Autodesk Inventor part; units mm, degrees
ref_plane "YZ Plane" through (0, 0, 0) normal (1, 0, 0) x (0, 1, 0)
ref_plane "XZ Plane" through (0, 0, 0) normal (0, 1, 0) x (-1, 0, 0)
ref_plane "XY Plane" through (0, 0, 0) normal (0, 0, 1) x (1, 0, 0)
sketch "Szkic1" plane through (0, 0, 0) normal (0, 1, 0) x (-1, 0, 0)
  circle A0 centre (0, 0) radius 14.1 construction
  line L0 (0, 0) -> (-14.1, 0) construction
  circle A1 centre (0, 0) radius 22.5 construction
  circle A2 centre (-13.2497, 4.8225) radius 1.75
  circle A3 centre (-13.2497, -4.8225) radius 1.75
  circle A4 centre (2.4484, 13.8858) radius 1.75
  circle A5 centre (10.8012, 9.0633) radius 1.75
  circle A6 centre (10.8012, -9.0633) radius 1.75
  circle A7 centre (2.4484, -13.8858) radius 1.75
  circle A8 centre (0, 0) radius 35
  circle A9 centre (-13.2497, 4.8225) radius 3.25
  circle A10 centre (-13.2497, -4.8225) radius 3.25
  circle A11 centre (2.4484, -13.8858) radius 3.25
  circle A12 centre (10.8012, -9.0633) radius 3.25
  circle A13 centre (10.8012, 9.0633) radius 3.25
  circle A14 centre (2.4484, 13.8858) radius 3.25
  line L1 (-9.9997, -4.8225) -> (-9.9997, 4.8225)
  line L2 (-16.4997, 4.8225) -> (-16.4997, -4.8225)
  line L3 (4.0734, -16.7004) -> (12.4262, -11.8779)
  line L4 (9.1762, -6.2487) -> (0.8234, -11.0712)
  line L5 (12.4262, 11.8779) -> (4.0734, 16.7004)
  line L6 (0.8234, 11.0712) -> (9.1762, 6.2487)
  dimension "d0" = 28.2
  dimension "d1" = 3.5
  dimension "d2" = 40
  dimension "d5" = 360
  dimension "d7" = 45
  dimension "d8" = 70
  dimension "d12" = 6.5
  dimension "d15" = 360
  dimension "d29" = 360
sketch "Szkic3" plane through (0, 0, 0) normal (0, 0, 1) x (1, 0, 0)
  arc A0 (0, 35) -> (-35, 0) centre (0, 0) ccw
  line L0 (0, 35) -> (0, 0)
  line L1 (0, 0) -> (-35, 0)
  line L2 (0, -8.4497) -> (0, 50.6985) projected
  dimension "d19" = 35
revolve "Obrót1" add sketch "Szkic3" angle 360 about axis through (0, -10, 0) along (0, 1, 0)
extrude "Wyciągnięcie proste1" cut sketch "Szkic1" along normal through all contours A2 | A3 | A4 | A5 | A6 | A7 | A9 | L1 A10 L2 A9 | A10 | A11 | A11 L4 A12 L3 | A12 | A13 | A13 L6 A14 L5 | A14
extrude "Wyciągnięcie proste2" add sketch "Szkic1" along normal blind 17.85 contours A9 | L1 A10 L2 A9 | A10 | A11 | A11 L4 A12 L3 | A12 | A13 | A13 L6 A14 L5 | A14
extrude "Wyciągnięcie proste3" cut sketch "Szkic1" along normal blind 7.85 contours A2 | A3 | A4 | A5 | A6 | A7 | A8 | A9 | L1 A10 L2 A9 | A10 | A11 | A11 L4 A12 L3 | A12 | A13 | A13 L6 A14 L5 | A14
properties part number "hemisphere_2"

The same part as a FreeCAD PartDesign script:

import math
import FreeCAD as App
import Part
import Sketcher
Q = App.Units.Quantity

doc = App.newDocument("Part")
body = doc.addObject("PartDesign::Body", "Body")

# Sketch on XY plane
sketch1 = body.newObject("Sketcher::SketchObject", "Sketch")
sketch1.AttachmentSupport = (doc.getObject("XY_Plane"), [""])
sketch1.MapMode = "FlatFace"
sketch1.addGeometry(Part.LineSegment(App.Vector(0, 0, 0), App.Vector(0, 35, 0)), False)
sketch1.addGeometry(Part.ArcOfCircle(Part.Circle(App.Vector(0, 0, 0), App.Vector(0, 0, 1), 35), math.radians(90), math.radians(180)), False)
sketch1.addGeometry(Part.LineSegment(App.Vector(-35, 0, 0), App.Vector(0, 0, 0)), False)
sketch1.addConstraint(Sketcher.Constraint("Coincident", 0, 2, 1, 1))
sketch1.addConstraint(Sketcher.Constraint("Coincident", 1, 2, 2, 1))
sketch1.addConstraint(Sketcher.Constraint("Coincident", 2, 2, 0, 1))
sketch1.addConstraint(Sketcher.Constraint("Vertical", 0))
sketch1.addConstraint(Sketcher.Constraint("Horizontal", 2))
sketch1.addConstraint(Sketcher.Constraint("Coincident", 1, 3, -1, 1))
sketch1.addConstraint(Sketcher.Constraint("Coincident", 2, 2, -1, 1))
sketch1.addConstraint(Sketcher.Constraint("Radius", 1, Q("35 mm")))
revolution = body.newObject("PartDesign::Revolution", "Revolution")
revolution.Profile = sketch1
revolution.ReferenceAxis = (sketch1, ["V_Axis"])
revolution.Angle = 360

# Sketch on XZ plane
sketch2 = body.newObject("Sketcher::SketchObject", "Sketch001")
sketch2.AttachmentSupport = (doc.getObject("XZ_Plane"), [""])
sketch2.MapMode = "FlatFace"
sketch2.addGeometry(Part.ArcOfCircle(Part.Circle(App.Vector(13.2, 4.8, 0), App.Vector(0, 0, 1), 3.2), math.radians(0), math.radians(180)), False)
sketch2.addGeometry(Part.LineSegment(App.Vector(16.5, 4.8, 0), App.Vector(16.5, -4.8, 0)), False)
sketch2.addGeometry(Part.ArcOfCircle(Part.Circle(App.Vector(13.2, -4.8, 0), App.Vector(0, 0, 1), 3.2), math.radians(180), math.radians(360)), False)
sketch2.addGeometry(Part.LineSegment(App.Vector(10, -4.8, 0), App.Vector(10, 4.8, 0)), False)
sketch2.addGeometry(Part.ArcOfCircle(Part.Circle(App.Vector(-2.4, 13.9, 0), App.Vector(0, 0, 1), 3.2), math.radians(-60), math.radians(120)), False)
sketch2.addGeometry(Part.LineSegment(App.Vector(-0.8, 11.1, 0), App.Vector(-9.2, 6.2, 0)), False)
sketch2.addGeometry(Part.ArcOfCircle(Part.Circle(App.Vector(-10.8, 9.1, 0), App.Vector(0, 0, 1), 3.2), math.radians(120), math.radians(300)), False)
sketch2.addGeometry(Part.LineSegment(App.Vector(-12.4, 11.9, 0), App.Vector(-4.1, 16.7, 0)), False)
sketch2.addGeometry(Part.LineSegment(App.Vector(-9.2, -6.2, 0), App.Vector(-0.8, -11.1, 0)), False)
sketch2.addGeometry(Part.ArcOfCircle(Part.Circle(App.Vector(-2.4, -13.9, 0), App.Vector(0, 0, 1), 3.2), math.radians(-120), math.radians(60)), False)
sketch2.addGeometry(Part.LineSegment(App.Vector(-4.1, -16.7, 0), App.Vector(-12.4, -11.9, 0)), False)
sketch2.addGeometry(Part.ArcOfCircle(Part.Circle(App.Vector(-10.8, -9.1, 0), App.Vector(0, 0, 1), 3.2), math.radians(60), math.radians(240)), False)
sketch2.addConstraint(Sketcher.Constraint("Tangent", 0, 1, 1, 1))
sketch2.addConstraint(Sketcher.Constraint("Tangent", 1, 2, 2, 2))
sketch2.addConstraint(Sketcher.Constraint("Tangent", 2, 1, 3, 1))
sketch2.addConstraint(Sketcher.Constraint("Tangent", 3, 2, 0, 2))
sketch2.addConstraint(Sketcher.Constraint("Tangent", 4, 1, 5, 1))
sketch2.addConstraint(Sketcher.Constraint("Tangent", 5, 2, 6, 2))
sketch2.addConstraint(Sketcher.Constraint("Tangent", 6, 1, 7, 1))
sketch2.addConstraint(Sketcher.Constraint("Tangent", 7, 2, 4, 2))
sketch2.addConstraint(Sketcher.Constraint("Tangent", 8, 2, 9, 2))
sketch2.addConstraint(Sketcher.Constraint("Tangent", 9, 1, 10, 1))
sketch2.addConstraint(Sketcher.Constraint("Tangent", 10, 2, 11, 2))
sketch2.addConstraint(Sketcher.Constraint("Tangent", 11, 1, 8, 1))
sketch2.addConstraint(Sketcher.Constraint("Vertical", 1))
sketch2.addConstraint(Sketcher.Constraint("Vertical", 3))
sketch2.addConstraint(Sketcher.Constraint("Equal", 2, 4))
sketch2.addConstraint(Sketcher.Constraint("Equal", 4, 6))
sketch2.addConstraint(Sketcher.Constraint("Equal", 6, 9))
sketch2.addConstraint(Sketcher.Constraint("Equal", 9, 11))
sketch2.addConstraint(Sketcher.Constraint("Symmetric", 4, 3, 9, 3, -1))
sketch2.addConstraint(Sketcher.Constraint("Symmetric", 6, 3, 11, 3, -1))
sketch2.addConstraint(Sketcher.Constraint("Radius", 0, Q("3.25 mm")))
sketch2.addConstraint(Sketcher.Constraint("Angle", 5, Q("-150 deg")))
sketch2.addConstraint(Sketcher.Constraint("DistanceY", 1, 2, 1, 1, Q("9.645 mm")))
sketch2.addConstraint(Sketcher.Constraint("Distance", 5, Q("9.645 mm")))
sketch2.addConstraint(Sketcher.Constraint("DistanceY", -1, 1, 6, 1, Q("11.878 mm")))
sketch2.addConstraint(Sketcher.Constraint("DistanceX", 4, 3, 0, 3, Q("15.698 mm")))
sketch2.addConstraint(Sketcher.Constraint("DistanceY", 9, 1, 2, 1, Q("11.878 mm")))
sketch2.addConstraint(Sketcher.Constraint("DistanceX", -1, 1, 0, 3, Q("13.2497 mm")))
pocket1 = body.newObject("PartDesign::Pocket", "Pocket")
pocket1.Profile = sketch2
pocket1.Type = "ThroughAll"

# Sketch on XZ plane
sketch3 = body.newObject("Sketcher::SketchObject", "Sketch002")
sketch3.AttachmentSupport = (doc.getObject("XZ_Plane"), [""])
sketch3.MapMode = "FlatFace"
sketch3.addGeometry(Part.ArcOfCircle(Part.Circle(App.Vector(13.2, 4.8, 0), App.Vector(0, 0, 1), 3.2), math.radians(0), math.radians(180)), False)
sketch3.addGeometry(Part.LineSegment(App.Vector(16.5, 4.8, 0), App.Vector(16.5, -4.8, 0)), False)
sketch3.addGeometry(Part.ArcOfCircle(Part.Circle(App.Vector(13.2, -4.8, 0), App.Vector(0, 0, 1), 3.2), math.radians(180), math.radians(360)), False)
sketch3.addGeometry(Part.LineSegment(App.Vector(10, -4.8, 0), App.Vector(10, 4.8, 0)), False)
sketch3.addGeometry(Part.Circle(App.Vector(13.2, 4.8, 0), App.Vector(0, 0, 1), 1.8), False)
sketch3.addGeometry(Part.Circle(App.Vector(13.2, -4.8, 0), App.Vector(0, 0, 1), 1.8), False)
sketch3.addGeometry(Part.ArcOfCircle(Part.Circle(App.Vector(-2.4, -13.9, 0), App.Vector(0, 0, 1), 3.2), math.radians(-120), math.radians(60)), False)
sketch3.addGeometry(Part.LineSegment(App.Vector(-4.1, -16.7, 0), App.Vector(-12.4, -11.9, 0)), False)
sketch3.addGeometry(Part.ArcOfCircle(Part.Circle(App.Vector(-10.8, -9.1, 0), App.Vector(0, 0, 1), 3.2), math.radians(60), math.radians(240)), False)
sketch3.addGeometry(Part.LineSegment(App.Vector(-9.2, -6.2, 0), App.Vector(-0.8, -11.1, 0)), False)
sketch3.addGeometry(Part.Circle(App.Vector(-2.4, -13.9, 0), App.Vector(0, 0, 1), 1.8), False)
sketch3.addGeometry(Part.Circle(App.Vector(-10.8, -9.1, 0), App.Vector(0, 0, 1), 1.8), False)
sketch3.addGeometry(Part.ArcOfCircle(Part.Circle(App.Vector(-10.8, 9.1, 0), App.Vector(0, 0, 1), 3.2), math.radians(120), math.radians(300)), False)
sketch3.addGeometry(Part.LineSegment(App.Vector(-12.4, 11.9, 0), App.Vector(-4.1, 16.7, 0)), False)
sketch3.addGeometry(Part.ArcOfCircle(Part.Circle(App.Vector(-2.4, 13.9, 0), App.Vector(0, 0, 1), 3.2), math.radians(-60), math.radians(120)), False)
sketch3.addGeometry(Part.LineSegment(App.Vector(-0.8, 11.1, 0), App.Vector(-9.2, 6.2, 0)), False)
sketch3.addGeometry(Part.Circle(App.Vector(-10.8, 9.1, 0), App.Vector(0, 0, 1), 1.8), False)
sketch3.addGeometry(Part.Circle(App.Vector(-2.4, 13.9, 0), App.Vector(0, 0, 1), 1.8), False)
sketch3.addConstraint(Sketcher.Constraint("Tangent", 0, 1, 1, 1))
sketch3.addConstraint(Sketcher.Constraint("Tangent", 1, 2, 2, 2))
sketch3.addConstraint(Sketcher.Constraint("Tangent", 2, 1, 3, 1))
sketch3.addConstraint(Sketcher.Constraint("Tangent", 3, 2, 0, 2))
sketch3.addConstraint(Sketcher.Constraint("Tangent", 6, 1, 7, 1))
sketch3.addConstraint(Sketcher.Constraint("Tangent", 7, 2, 8, 2))
sketch3.addConstraint(Sketcher.Constraint("Tangent", 8, 1, 9, 1))
sketch3.addConstraint(Sketcher.Constraint("Tangent", 9, 2, 6, 2))
sketch3.addConstraint(Sketcher.Constraint("Tangent", 12, 1, 13, 1))
sketch3.addConstraint(Sketcher.Constraint("Tangent", 13, 2, 14, 2))
sketch3.addConstraint(Sketcher.Constraint("Tangent", 14, 1, 15, 1))
sketch3.addConstraint(Sketcher.Constraint("Tangent", 15, 2, 12, 2))
sketch3.addConstraint(Sketcher.Constraint("Vertical", 1))
sketch3.addConstraint(Sketcher.Constraint("Vertical", 3))
sketch3.addConstraint(Sketcher.Constraint("Coincident", 4, 3, 0, 3))
sketch3.addConstraint(Sketcher.Constraint("Coincident", 5, 3, 2, 3))
sketch3.addConstraint(Sketcher.Constraint("Coincident", 10, 3, 6, 3))
sketch3.addConstraint(Sketcher.Constraint("Coincident", 11, 3, 8, 3))
sketch3.addConstraint(Sketcher.Constraint("Coincident", 16, 3, 12, 3))
sketch3.addConstraint(Sketcher.Constraint("Coincident", 17, 3, 14, 3))
sketch3.addConstraint(Sketcher.Constraint("Equal", 4, 5))
sketch3.addConstraint(Sketcher.Constraint("Equal", 2, 6))
sketch3.addConstraint(Sketcher.Constraint("Equal", 6, 8))
sketch3.addConstraint(Sketcher.Constraint("Equal", 5, 10))
sketch3.addConstraint(Sketcher.Constraint("Equal", 10, 11))
sketch3.addConstraint(Sketcher.Constraint("Equal", 8, 12))
sketch3.addConstraint(Sketcher.Constraint("Equal", 12, 14))
sketch3.addConstraint(Sketcher.Constraint("Equal", 11, 16))
sketch3.addConstraint(Sketcher.Constraint("Equal", 16, 17))
sketch3.addConstraint(Sketcher.Constraint("Symmetric", 8, 3, 12, 3, -1))
sketch3.addConstraint(Sketcher.Constraint("Symmetric", 6, 3, 14, 3, -1))
sketch3.addConstraint(Sketcher.Constraint("Diameter", 4, Q("3.5 mm")))
sketch3.addConstraint(Sketcher.Constraint("Radius", 0, Q("3.25 mm")))
sketch3.addConstraint(Sketcher.Constraint("Angle", 7, Q("150 deg")))
sketch3.addConstraint(Sketcher.Constraint("DistanceY", 1, 2, 1, 1, Q("9.645 mm")))
sketch3.addConstraint(Sketcher.Constraint("Distance", 7, Q("9.645 mm")))
sketch3.addConstraint(Sketcher.Constraint("DistanceY", 7, 2, -1, 1, Q("11.878 mm")))
sketch3.addConstraint(Sketcher.Constraint("DistanceX", 6, 3, 2, 3, Q("15.698 mm")))
sketch3.addConstraint(Sketcher.Constraint("DistanceY", 6, 1, 2, 1, Q("11.878 mm")))
sketch3.addConstraint(Sketcher.Constraint("DistanceX", -1, 1, 0, 3, Q("13.2497 mm")))
pad1 = body.newObject("PartDesign::Pad", "Pad")
pad1.Profile = sketch3
pad1.Length = 17.85
pad1.Reversed = True

# Sketch on XZ plane
sketch4 = body.newObject("Sketcher::SketchObject", "Sketch003")
sketch4.AttachmentSupport = (doc.getObject("XZ_Plane"), [""])
sketch4.MapMode = "FlatFace"
sketch4.addGeometry(Part.Circle(App.Vector(0, 0, 0), App.Vector(0, 0, 1), 35), False)
sketch4.addConstraint(Sketcher.Constraint("Coincident", 0, 3, -1, 1))
sketch4.addConstraint(Sketcher.Constraint("Diameter", 0, Q("70 mm")))
pocket2 = body.newObject("PartDesign::Pocket", "Pocket001")
pocket2.Profile = sketch4
pocket2.Length = 7.85

doc.recompute()
